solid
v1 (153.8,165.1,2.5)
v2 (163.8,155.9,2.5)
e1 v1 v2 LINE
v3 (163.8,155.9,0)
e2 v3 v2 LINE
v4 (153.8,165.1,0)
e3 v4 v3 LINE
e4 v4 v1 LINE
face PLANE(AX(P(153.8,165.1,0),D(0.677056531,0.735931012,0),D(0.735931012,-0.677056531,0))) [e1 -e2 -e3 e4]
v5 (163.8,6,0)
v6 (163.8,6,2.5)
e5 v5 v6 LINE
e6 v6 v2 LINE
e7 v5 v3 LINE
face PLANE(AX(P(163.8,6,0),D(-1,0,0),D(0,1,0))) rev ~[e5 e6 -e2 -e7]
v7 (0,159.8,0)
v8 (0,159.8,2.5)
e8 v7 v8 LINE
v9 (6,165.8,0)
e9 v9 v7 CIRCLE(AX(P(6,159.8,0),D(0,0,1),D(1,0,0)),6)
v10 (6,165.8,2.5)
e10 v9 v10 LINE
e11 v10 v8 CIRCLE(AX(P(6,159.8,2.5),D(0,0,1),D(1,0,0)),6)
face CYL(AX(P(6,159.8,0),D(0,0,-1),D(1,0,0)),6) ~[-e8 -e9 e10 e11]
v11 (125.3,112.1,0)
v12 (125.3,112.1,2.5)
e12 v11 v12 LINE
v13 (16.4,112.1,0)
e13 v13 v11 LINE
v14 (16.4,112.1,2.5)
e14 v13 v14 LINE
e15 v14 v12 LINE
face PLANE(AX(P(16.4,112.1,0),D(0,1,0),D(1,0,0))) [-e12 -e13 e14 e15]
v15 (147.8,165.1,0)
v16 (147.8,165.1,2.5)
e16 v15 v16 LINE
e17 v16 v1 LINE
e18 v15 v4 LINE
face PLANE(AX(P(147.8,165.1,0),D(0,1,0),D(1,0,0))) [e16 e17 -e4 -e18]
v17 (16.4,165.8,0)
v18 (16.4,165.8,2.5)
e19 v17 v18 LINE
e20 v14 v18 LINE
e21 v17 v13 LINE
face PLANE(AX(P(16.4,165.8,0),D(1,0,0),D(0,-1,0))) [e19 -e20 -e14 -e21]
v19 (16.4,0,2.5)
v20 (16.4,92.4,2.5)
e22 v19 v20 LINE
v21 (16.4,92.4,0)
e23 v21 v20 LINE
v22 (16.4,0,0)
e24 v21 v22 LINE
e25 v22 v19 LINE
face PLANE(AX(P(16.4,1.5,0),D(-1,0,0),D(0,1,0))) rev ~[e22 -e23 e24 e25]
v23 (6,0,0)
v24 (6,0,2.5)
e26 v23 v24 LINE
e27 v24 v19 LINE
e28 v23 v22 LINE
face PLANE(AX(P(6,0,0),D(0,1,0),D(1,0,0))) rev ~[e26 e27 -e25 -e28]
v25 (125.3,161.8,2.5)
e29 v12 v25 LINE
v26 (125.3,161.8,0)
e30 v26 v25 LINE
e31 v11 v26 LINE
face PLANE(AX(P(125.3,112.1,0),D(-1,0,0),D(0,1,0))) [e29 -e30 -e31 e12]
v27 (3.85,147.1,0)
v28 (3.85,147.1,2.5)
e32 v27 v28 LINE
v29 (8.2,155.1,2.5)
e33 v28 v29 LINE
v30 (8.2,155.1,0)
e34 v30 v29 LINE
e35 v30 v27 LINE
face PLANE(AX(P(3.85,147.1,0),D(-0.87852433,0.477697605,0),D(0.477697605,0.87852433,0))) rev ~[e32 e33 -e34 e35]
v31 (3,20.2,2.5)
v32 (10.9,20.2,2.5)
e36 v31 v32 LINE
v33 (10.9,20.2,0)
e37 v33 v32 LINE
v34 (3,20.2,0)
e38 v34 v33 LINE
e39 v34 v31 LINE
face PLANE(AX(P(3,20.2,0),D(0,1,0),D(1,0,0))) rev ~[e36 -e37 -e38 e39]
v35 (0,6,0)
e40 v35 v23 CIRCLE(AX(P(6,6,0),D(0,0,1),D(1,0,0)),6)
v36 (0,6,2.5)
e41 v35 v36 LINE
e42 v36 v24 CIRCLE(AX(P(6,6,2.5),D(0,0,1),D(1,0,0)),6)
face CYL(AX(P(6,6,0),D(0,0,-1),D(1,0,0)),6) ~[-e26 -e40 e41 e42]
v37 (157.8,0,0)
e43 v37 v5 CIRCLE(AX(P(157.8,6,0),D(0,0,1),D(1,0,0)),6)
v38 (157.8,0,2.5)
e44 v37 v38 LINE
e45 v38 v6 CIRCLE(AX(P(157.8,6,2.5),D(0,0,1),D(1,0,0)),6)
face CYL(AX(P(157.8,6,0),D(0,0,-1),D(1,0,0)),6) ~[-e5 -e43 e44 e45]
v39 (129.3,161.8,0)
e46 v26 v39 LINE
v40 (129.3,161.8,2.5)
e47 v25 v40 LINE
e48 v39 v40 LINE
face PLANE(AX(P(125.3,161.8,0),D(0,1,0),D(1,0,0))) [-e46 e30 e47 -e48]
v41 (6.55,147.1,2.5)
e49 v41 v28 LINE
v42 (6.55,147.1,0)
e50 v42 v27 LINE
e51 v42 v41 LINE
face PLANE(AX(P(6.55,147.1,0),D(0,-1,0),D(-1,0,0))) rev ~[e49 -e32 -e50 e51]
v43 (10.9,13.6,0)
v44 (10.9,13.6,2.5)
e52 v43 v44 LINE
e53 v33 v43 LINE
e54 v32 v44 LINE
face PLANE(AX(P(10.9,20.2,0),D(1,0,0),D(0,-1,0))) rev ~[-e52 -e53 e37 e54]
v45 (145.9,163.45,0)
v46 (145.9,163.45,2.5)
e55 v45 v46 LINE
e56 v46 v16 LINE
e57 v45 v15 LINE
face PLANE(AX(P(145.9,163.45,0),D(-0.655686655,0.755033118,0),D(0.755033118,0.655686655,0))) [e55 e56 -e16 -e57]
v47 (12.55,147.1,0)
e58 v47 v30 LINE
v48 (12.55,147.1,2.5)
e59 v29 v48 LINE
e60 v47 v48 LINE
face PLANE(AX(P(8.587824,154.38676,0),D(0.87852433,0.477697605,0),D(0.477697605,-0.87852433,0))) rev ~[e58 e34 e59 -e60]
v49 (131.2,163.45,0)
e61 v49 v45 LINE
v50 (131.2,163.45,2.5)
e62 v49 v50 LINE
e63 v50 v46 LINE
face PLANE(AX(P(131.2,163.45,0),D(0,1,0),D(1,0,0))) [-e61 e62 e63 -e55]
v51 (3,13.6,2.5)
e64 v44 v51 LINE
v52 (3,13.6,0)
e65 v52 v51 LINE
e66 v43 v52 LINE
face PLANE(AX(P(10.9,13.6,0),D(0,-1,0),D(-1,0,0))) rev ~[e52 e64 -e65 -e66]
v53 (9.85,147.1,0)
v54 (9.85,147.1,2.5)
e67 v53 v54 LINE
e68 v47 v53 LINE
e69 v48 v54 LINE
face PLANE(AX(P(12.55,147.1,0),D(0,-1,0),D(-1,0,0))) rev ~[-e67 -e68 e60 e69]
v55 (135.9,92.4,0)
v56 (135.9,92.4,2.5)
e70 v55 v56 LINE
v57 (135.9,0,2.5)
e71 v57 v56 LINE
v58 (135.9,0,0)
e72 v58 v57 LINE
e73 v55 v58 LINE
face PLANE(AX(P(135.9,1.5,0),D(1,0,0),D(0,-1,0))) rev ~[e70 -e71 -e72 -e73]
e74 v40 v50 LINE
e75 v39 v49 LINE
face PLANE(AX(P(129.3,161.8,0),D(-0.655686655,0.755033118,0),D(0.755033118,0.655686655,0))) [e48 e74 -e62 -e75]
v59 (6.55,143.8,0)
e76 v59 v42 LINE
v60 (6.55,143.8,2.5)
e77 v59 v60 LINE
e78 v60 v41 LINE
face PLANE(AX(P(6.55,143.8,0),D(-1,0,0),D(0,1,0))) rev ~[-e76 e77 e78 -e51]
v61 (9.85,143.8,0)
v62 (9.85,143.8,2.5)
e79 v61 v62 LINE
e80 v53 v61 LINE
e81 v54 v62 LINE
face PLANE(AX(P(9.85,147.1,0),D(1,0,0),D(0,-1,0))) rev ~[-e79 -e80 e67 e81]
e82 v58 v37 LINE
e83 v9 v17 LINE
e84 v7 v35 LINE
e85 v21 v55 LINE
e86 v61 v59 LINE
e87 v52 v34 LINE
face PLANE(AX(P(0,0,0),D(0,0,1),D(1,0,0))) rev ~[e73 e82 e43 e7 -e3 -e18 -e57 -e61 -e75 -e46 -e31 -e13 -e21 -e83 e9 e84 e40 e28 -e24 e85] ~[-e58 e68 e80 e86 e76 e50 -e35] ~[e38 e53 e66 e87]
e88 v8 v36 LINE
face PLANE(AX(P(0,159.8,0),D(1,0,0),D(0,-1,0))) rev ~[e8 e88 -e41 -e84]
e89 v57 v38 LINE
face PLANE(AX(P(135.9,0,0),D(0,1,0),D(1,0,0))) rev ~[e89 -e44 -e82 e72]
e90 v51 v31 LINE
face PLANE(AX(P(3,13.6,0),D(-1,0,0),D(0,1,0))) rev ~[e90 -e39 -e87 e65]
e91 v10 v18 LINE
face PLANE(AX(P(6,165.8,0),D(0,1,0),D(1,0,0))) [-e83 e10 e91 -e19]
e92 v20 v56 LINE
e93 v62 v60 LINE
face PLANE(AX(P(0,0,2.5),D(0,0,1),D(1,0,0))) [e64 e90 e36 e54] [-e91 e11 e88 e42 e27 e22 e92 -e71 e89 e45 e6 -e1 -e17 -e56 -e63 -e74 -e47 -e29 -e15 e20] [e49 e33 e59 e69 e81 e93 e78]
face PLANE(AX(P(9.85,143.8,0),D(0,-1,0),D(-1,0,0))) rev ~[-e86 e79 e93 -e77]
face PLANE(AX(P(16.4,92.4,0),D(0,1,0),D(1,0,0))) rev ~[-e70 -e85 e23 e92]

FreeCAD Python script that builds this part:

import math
import FreeCAD as App
import Part
import Sketcher
Q = App.Units.Quantity


def add_polygon(sketch, points):
    """Adds a closed chain of lines whose ends are joined by coincident constraints."""
    first, n = sketch.GeometryCount, len(points)
    for a, b in zip(points, points[1:] + points[:1]):
        sketch.addGeometry(Part.LineSegment(App.Vector(*a, 0), App.Vector(*b, 0)), False)
    for i in range(n):
        sketch.addConstraint(Sketcher.Constraint("Coincident", first + i, 2, first + (i + 1) % n, 1))

doc = App.newDocument("Part")
body = doc.addObject("PartDesign::Body", "Body")

# Sketch on XY plane
sketch1 = doc.addObject("Sketcher::SketchObject", "Sketch")
body.addObject(sketch1)
sketch1.AttachmentSupport = (doc.XY_Plane, [""])
sketch1.MapMode = "FlatFace"
sketch1.addGeometry(Part.LineSegment(App.Vector(135.9, 0, 0), App.Vector(157.8, 0, 0)), False)  # 0
sketch1.addGeometry(Part.ArcOfCircle(Part.Circle(App.Vector(157.8, 6, 0), App.Vector(0, 0, 1), 6), math.radians(-90), math.radians(0)), False)  # 1
sketch1.addGeometry(Part.LineSegment(App.Vector(163.8, 6, 0), App.Vector(163.8, 155.9, 0)), False)  # 2
sketch1.addGeometry(Part.LineSegment(App.Vector(163.8, 155.9, 0), App.Vector(153.8, 165.1, 0)), False)  # 3
sketch1.addGeometry(Part.LineSegment(App.Vector(153.8, 165.1, 0), App.Vector(147.8, 165.1, 0)), False)  # 4
sketch1.addGeometry(Part.LineSegment(App.Vector(147.8, 165.1, 0), App.Vector(145.9, 163.4, 0)), False)  # 5
sketch1.addGeometry(Part.LineSegment(App.Vector(145.9, 163.4, 0), App.Vector(131.2, 163.4, 0)), False)  # 6
sketch1.addGeometry(Part.LineSegment(App.Vector(131.2, 163.4, 0), App.Vector(129.3, 161.8, 0)), False)  # 7
sketch1.addGeometry(Part.LineSegment(App.Vector(129.3, 161.8, 0), App.Vector(125.3, 161.8, 0)), False)  # 8
sketch1.addGeometry(Part.LineSegment(App.Vector(125.3, 161.8, 0), App.Vector(125.3, 112.1, 0)), False)  # 9
sketch1.addGeometry(Part.LineSegment(App.Vector(125.3, 112.1, 0), App.Vector(16.4, 112.1, 0)), False)  # 10
sketch1.addGeometry(Part.LineSegment(App.Vector(16.4, 112.1, 0), App.Vector(16.4, 165.8, 0)), False)  # 11
sketch1.addGeometry(Part.LineSegment(App.Vector(16.4, 165.8, 0), App.Vector(6, 165.8, 0)), False)  # 12
sketch1.addGeometry(Part.ArcOfCircle(Part.Circle(App.Vector(6, 159.8, 0), App.Vector(0, 0, 1), 6), math.radians(90), math.radians(180)), False)  # 13
sketch1.addGeometry(Part.LineSegment(App.Vector(0, 159.8, 0), App.Vector(0, 6, 0)), False)  # 14
sketch1.addGeometry(Part.ArcOfCircle(Part.Circle(App.Vector(6, 6, 0), App.Vector(0, 0, 1), 6), math.radians(180), math.radians(270)), False)  # 15
sketch1.addGeometry(Part.LineSegment(App.Vector(6, 0, 0), App.Vector(16.4, 0, 0)), False)  # 16
sketch1.addGeometry(Part.LineSegment(App.Vector(16.4, 0, 0), App.Vector(16.4, 92.4, 0)), False)  # 17
sketch1.addGeometry(Part.LineSegment(App.Vector(16.4, 92.4, 0), App.Vector(135.9, 92.4, 0)), False)  # 18
sketch1.addGeometry(Part.LineSegment(App.Vector(135.9, 92.4, 0), App.Vector(135.9, 0, 0)), False)  # 19
add_polygon(sketch1, [(3.9, 147.1), (8.2, 155.1), (12.6, 147.1), (9.8, 147.1), (9.8, 143.8), (6.5, 143.8), (6.5, 147.1)])  # lines 20-26
add_polygon(sketch1, [(3, 13.6), (3, 20.2), (10.9, 20.2), (10.9, 13.6)])  # lines 27-30
sketch1.addConstraint([
    Sketcher.Constraint("Tangent", 0, 2, 1, 1),
    Sketcher.Constraint("Tangent", 1, 2, 2, 1),
    Sketcher.Constraint("Coincident", 2, 2, 3, 1),
    Sketcher.Constraint("Coincident", 3, 2, 4, 1),
    Sketcher.Constraint("Coincident", 4, 2, 5, 1),
    Sketcher.Constraint("Coincident", 5, 2, 6, 1),
    Sketcher.Constraint("Coincident", 6, 2, 7, 1),
    Sketcher.Constraint("Coincident", 7, 2, 8, 1),
    Sketcher.Constraint("Coincident", 8, 2, 9, 1),
    Sketcher.Constraint("Coincident", 9, 2, 10, 1),
    Sketcher.Constraint("Coincident", 10, 2, 11, 1),
    Sketcher.Constraint("Coincident", 11, 2, 12, 1),
    Sketcher.Constraint("Tangent", 12, 2, 13, 1),
    Sketcher.Constraint("Tangent", 13, 2, 14, 1),
    Sketcher.Constraint("Tangent", 14, 2, 15, 1),
    Sketcher.Constraint("Tangent", 15, 2, 16, 1),
    Sketcher.Constraint("Coincident", 16, 2, 17, 1),
    Sketcher.Constraint("Coincident", 17, 2, 18, 1),
    Sketcher.Constraint("Coincident", 18, 2, 19, 1),
    Sketcher.Constraint("Coincident", 19, 2, 0, 1),
    Sketcher.Constraint("Horizontal", 0),
    Sketcher.Constraint("Vertical", 2),
    Sketcher.Constraint("Horizontal", 4),
    Sketcher.Constraint("Horizontal", 6),
    Sketcher.Constraint("Horizontal", 8),
    Sketcher.Constraint("Vertical", 9),
    Sketcher.Constraint("Horizontal", 10),
    Sketcher.Constraint("Vertical", 11),
    Sketcher.Constraint("Horizontal", 12),
    Sketcher.Constraint("Vertical", 14),
    Sketcher.Constraint("Horizontal", 16),
    Sketcher.Constraint("Vertical", 17),
    Sketcher.Constraint("Horizontal", 18),
    Sketcher.Constraint("Vertical", 19),
    Sketcher.Constraint("Horizontal", 22),
    Sketcher.Constraint("Vertical", 23),
    Sketcher.Constraint("Horizontal", 24),
    Sketcher.Constraint("Vertical", 25),
    Sketcher.Constraint("Horizontal", 26),
    Sketcher.Constraint("Vertical", 27),
    Sketcher.Constraint("Horizontal", 28),
    Sketcher.Constraint("Vertical", 29),
    Sketcher.Constraint("Horizontal", 30),
    Sketcher.Constraint("Equal", 1, 13),
    Sketcher.Constraint("Equal", 13, 15),
    Sketcher.Constraint("PointOnObject", 0, 2, -1),
    Sketcher.Constraint("PointOnObject", 13, 2, -2),
    Sketcher.Constraint("PointOnObject", 15, 2, -1),
    Sketcher.Constraint("Parallel", 5, 7),
    Sketcher.Constraint("Horizontal", 22, 2, 25, 2),
    Sketcher.Constraint("Vertical", 11, 2, 16, 2),
    Sketcher.Constraint("Equal", 22, 26),
    Sketcher.Constraint("Equal", 24, 23),
    Sketcher.Constraint("Equal", 5, 7),
    Sketcher.Constraint("Equal", 20, 21),
    Sketcher.Constraint("Radius", 1, Q("6 mm")),
    Sketcher.Constraint("DistanceX", 4, 2, 4, 1, Q("6 mm")),
    Sketcher.Constraint("DistanceX", 8, 2, 8, 1, Q("4 mm")),
    Sketcher.Constraint("DistanceX", 6, 2, 6, 1, Q("14.7 mm")),
    Sketcher.Constraint("DistanceX", 10, 2, 10, 1, Q("108.9 mm")),
    Sketcher.Constraint("DistanceX", 18, 1, 18, 2, Q("119.5 mm")),
    Sketcher.Constraint("DistanceX", 22, 2, 22, 1, Q("2.7 mm")),
    Sketcher.Constraint("DistanceX", 24, 2, 24, 1, Q("3.3 mm")),
    Sketcher.Constraint("DistanceX", 28, 1, 28, 2, Q("7.9 mm")),
    Sketcher.Constraint("DistanceY", 9, 2, 9, 1, Q("49.7 mm")),
    Sketcher.Constraint("DistanceY", 11, 1, 11, 2, Q("53.7 mm")),
    Sketcher.Constraint("DistanceY", 17, 1, 17, 2, Q("92.4 mm")),
    Sketcher.Constraint("DistanceY", 27, 1, 27, 2, Q("6.6 mm")),
    Sketcher.Constraint("DistanceX", -1, 1, 27, 2, Q("3 mm")),
    Sketcher.Constraint("DistanceX", 3, 2, 2, 2, Q("10 mm")),
    Sketcher.Constraint("DistanceY", 21, 2, 20, 2, Q("8 mm")),
    Sketcher.Constraint("DistanceY", -1, 1, 3, 2, Q("165.1 mm")),
    Sketcher.Constraint("DistanceX", -1, 1, 10, 2, Q("16.4 mm")),
    Sketcher.Constraint("DistanceY", -1, 1, 11, 2, Q("165.8 mm")),
    Sketcher.Constraint("DistanceY", -1, 1, 29, 2, Q("13.6 mm")),
    Sketcher.Constraint("DistanceY", 2, 2, 3, 2, Q("9.2 mm")),
    Sketcher.Constraint("DistanceX", 5, 2, 3, 2, Q("7.9 mm")),
    Sketcher.Constraint("DistanceY", 10, 2, 20, 2, Q("43 mm")),
    Sketcher.Constraint("DistanceX", -1, 1, 20, 2, Q("8.2 mm")),
])
pad1 = doc.addObject("PartDesign::Pad", "Pad")
body.addObject(pad1)
pad1.Profile = sketch1
pad1.Length = 2.5

doc.recompute()
